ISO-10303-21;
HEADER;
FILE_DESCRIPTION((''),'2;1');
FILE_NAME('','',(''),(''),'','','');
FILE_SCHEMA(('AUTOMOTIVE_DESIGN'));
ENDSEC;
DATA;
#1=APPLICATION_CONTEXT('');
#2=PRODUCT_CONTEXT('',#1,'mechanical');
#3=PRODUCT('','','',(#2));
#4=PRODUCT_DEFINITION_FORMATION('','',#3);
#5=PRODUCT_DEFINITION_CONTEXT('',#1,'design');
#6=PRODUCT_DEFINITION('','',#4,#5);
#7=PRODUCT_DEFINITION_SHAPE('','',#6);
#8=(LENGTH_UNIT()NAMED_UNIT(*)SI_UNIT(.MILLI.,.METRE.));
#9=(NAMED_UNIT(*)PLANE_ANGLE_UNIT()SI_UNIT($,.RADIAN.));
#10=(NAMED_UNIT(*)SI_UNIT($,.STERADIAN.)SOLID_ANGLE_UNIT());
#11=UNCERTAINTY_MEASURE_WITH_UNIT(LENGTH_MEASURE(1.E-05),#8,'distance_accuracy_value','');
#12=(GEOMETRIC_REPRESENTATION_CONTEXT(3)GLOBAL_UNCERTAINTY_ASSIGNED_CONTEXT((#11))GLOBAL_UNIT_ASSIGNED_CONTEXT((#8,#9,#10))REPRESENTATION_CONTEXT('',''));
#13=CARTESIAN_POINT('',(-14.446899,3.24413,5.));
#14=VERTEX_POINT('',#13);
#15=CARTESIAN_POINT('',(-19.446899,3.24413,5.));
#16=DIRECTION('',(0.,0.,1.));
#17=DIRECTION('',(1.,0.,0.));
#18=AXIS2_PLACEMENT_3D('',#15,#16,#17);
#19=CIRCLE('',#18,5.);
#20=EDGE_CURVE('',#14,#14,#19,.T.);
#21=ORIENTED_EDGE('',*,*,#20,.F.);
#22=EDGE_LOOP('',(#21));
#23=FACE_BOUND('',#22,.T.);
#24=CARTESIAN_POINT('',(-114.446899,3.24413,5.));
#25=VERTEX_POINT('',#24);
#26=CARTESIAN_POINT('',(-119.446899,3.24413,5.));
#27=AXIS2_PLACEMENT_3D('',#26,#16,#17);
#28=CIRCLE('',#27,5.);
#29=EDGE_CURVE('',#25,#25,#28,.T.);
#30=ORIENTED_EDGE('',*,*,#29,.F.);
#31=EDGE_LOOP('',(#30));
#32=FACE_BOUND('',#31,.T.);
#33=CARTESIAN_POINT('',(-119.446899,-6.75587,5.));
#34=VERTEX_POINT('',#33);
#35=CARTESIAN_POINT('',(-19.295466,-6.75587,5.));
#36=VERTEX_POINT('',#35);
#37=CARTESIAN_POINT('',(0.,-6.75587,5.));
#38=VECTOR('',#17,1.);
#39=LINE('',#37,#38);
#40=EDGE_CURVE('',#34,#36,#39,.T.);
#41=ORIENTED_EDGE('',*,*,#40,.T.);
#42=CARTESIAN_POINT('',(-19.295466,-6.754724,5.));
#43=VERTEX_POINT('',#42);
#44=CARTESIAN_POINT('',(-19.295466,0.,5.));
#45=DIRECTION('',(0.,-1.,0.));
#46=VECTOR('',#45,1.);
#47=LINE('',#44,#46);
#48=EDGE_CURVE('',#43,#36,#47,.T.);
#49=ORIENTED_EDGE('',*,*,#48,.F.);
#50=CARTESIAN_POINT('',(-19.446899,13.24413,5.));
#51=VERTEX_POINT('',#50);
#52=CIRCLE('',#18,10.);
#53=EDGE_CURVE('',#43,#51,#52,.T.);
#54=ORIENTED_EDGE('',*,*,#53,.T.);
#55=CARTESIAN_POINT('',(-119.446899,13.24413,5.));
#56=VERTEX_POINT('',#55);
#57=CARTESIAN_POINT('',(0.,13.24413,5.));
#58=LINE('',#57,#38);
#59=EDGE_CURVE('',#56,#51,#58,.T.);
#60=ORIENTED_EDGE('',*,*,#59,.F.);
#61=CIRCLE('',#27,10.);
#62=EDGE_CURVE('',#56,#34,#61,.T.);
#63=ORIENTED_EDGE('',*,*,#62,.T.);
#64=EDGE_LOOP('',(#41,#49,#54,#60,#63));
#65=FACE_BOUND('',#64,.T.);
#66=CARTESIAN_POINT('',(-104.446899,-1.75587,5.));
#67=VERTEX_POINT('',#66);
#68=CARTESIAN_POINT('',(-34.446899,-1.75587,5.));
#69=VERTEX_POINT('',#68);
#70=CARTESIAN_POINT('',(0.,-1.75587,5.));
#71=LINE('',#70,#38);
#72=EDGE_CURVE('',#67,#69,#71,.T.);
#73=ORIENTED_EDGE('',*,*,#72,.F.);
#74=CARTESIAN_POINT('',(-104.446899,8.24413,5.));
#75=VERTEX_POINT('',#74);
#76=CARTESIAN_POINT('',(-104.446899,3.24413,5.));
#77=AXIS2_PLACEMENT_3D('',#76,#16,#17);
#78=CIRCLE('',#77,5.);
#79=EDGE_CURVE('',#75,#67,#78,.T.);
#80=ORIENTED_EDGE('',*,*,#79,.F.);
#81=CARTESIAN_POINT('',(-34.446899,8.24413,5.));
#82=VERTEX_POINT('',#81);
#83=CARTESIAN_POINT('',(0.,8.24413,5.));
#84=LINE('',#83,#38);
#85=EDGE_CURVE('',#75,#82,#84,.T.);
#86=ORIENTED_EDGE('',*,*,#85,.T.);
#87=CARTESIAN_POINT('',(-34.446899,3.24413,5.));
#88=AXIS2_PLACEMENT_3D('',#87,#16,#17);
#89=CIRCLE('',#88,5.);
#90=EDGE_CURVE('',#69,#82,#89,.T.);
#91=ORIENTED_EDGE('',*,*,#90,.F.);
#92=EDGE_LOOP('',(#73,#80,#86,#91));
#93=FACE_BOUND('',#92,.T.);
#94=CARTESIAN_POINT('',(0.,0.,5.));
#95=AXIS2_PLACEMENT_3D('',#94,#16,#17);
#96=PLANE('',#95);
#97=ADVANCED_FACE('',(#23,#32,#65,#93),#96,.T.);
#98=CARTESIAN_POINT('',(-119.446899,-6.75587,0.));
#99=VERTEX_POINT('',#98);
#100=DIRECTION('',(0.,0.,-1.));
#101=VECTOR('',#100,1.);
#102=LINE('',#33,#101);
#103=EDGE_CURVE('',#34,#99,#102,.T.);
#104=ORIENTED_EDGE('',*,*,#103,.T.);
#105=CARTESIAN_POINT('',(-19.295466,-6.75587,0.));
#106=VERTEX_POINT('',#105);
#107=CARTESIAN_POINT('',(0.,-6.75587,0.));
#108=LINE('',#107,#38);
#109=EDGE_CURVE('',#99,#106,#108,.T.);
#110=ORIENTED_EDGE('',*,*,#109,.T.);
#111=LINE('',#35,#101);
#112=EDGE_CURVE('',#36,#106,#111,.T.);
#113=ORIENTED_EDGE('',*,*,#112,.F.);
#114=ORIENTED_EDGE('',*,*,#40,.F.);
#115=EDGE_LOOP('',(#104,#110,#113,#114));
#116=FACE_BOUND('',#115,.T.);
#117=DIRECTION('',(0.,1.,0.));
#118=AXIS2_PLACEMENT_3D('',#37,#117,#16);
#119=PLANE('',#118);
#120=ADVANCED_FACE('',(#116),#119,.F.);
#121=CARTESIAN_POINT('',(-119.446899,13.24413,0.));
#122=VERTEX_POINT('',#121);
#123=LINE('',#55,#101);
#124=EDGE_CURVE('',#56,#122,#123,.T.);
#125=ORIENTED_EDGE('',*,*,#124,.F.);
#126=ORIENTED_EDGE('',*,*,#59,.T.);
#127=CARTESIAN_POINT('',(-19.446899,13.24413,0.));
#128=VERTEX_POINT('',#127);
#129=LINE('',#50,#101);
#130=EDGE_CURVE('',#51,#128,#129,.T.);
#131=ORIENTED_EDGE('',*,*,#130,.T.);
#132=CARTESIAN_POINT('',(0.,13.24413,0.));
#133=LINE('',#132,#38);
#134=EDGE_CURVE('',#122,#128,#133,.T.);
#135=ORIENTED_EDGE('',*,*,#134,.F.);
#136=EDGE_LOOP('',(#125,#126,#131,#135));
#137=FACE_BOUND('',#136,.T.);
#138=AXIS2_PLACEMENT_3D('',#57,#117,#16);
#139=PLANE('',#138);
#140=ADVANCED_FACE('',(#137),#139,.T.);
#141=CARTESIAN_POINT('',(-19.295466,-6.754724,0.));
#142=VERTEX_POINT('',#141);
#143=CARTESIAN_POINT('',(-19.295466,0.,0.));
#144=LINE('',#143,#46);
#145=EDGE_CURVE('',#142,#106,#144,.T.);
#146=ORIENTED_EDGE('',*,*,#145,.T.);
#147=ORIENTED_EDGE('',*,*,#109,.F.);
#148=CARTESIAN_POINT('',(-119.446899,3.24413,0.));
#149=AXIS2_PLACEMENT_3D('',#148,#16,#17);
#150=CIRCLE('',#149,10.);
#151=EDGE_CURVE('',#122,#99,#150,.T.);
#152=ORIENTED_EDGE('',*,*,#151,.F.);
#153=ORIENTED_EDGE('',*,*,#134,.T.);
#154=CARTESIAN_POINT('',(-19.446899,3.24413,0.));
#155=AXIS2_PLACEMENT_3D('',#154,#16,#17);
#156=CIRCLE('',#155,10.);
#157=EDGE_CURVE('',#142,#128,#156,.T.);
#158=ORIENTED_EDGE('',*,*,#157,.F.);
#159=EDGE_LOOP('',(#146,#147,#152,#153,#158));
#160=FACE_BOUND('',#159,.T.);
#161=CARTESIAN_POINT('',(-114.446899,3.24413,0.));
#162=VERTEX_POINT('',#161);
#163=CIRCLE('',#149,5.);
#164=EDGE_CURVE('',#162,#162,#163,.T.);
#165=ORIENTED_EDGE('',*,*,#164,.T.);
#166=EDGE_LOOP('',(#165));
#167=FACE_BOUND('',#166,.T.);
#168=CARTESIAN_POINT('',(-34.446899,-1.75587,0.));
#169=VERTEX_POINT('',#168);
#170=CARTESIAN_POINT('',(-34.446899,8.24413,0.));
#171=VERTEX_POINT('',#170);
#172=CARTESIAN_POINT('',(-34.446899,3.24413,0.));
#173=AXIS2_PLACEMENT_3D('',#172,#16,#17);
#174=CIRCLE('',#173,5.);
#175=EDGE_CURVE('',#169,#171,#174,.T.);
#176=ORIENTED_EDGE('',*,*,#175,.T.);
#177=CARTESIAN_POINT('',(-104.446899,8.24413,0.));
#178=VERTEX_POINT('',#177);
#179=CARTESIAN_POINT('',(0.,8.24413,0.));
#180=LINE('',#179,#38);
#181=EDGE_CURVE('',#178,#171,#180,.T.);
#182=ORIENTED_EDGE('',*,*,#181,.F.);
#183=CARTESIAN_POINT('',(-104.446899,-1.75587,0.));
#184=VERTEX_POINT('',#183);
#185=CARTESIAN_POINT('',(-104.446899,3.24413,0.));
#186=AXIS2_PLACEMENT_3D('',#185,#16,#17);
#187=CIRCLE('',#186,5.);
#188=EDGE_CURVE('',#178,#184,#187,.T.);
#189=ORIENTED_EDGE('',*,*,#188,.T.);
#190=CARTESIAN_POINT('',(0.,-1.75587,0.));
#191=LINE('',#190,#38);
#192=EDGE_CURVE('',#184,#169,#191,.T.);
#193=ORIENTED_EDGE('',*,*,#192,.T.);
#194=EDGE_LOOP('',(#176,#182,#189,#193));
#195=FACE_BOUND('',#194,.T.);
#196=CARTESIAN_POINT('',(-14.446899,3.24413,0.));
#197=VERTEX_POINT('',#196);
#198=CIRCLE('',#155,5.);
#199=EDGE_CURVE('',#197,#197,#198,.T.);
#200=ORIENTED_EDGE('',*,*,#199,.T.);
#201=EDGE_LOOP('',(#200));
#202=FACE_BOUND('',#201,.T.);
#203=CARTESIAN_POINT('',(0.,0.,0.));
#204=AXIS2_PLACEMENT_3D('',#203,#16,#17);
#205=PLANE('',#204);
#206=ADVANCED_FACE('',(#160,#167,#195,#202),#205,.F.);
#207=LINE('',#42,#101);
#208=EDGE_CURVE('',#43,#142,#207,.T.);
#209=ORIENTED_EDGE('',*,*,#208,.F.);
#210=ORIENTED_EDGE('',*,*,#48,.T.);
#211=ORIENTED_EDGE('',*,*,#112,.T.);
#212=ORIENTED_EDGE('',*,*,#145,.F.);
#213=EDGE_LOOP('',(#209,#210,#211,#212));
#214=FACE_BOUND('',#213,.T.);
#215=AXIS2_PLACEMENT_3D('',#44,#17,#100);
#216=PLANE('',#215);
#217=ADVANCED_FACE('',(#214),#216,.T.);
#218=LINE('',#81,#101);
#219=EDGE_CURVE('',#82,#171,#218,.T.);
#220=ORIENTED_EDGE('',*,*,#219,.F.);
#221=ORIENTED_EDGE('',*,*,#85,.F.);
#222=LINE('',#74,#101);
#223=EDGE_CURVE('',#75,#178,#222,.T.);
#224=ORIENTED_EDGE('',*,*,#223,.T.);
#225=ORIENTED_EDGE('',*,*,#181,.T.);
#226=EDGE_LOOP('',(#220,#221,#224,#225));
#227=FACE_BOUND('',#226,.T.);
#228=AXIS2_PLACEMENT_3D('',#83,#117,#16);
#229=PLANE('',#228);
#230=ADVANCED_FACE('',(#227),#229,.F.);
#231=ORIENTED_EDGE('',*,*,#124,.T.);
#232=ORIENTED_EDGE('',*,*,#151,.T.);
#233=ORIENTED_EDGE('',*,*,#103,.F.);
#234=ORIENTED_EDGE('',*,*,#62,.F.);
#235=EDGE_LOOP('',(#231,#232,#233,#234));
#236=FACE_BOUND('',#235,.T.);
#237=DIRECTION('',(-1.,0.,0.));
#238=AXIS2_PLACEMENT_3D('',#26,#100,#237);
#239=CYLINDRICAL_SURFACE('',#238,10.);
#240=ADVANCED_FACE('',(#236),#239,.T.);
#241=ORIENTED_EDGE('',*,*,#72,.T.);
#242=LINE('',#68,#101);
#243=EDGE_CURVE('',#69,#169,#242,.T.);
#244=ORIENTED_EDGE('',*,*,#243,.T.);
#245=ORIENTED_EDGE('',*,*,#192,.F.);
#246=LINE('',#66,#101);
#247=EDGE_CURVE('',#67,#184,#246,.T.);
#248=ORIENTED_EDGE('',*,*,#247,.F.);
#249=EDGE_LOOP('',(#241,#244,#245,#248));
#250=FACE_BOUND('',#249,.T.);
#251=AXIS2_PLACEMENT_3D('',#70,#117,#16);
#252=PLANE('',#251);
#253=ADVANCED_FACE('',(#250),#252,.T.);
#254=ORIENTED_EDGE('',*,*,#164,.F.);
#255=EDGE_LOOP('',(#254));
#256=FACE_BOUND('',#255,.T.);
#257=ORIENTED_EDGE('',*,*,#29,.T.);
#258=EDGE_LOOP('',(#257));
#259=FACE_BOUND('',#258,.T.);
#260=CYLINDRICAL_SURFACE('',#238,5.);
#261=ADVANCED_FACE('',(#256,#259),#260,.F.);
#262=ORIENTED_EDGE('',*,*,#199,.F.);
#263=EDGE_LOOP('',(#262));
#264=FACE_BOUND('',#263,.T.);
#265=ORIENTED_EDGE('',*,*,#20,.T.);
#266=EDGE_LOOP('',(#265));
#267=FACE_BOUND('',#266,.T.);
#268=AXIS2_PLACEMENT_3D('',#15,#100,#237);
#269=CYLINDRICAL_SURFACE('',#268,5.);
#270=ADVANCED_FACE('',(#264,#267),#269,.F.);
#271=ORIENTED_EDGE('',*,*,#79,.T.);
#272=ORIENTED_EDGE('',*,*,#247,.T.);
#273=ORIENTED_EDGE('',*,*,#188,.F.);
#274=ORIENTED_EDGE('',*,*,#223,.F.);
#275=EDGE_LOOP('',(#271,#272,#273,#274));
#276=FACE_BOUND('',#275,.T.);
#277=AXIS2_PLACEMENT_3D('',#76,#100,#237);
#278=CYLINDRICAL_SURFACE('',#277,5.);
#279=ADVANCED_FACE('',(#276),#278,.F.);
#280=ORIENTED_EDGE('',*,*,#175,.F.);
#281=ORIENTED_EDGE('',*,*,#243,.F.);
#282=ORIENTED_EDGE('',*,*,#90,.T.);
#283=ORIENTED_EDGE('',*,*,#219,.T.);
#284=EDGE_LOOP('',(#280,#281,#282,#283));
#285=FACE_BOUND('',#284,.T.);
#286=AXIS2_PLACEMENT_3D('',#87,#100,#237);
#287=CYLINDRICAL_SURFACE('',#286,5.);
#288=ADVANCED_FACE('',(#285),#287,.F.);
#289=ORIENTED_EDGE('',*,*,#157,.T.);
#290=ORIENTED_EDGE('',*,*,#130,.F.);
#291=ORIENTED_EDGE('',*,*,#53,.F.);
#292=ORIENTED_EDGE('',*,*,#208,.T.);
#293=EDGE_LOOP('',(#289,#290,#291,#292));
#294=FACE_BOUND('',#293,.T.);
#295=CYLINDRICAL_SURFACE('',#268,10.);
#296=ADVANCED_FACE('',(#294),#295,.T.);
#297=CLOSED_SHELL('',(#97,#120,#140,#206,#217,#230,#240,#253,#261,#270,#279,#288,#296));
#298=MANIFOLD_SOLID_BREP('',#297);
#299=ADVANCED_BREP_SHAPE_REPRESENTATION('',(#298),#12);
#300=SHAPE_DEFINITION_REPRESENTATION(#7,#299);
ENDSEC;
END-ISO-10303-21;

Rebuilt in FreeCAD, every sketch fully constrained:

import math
import FreeCAD as App
import Part
import Sketcher
from FreeCAD import Vector
Q = App.Units.Quantity

doc = App.newDocument("Part")
body = doc.addObject("PartDesign::Body", "Body")

sketch1 = body.newObject("Sketcher::SketchObject", "Sketch")
sketch1.AttachmentSupport = (doc.getObject("XY_Plane"), [""])
sketch1.MapMode = "FlatFace"
sketch1.addGeometry(Part.LineSegment(Vector(-19.4469, 13.2441, 0), Vector(-119.4469, 13.2441, 0)), False)
sketch1.addGeometry(Part.ArcOfCircle(Part.Circle(Vector(-119.4469, 3.2441, 0), Vector(0, 0, 1), 10), math.radians(90), math.radians(270)), False)
sketch1.addGeometry(Part.LineSegment(Vector(-119.4469, -6.7559, 0), Vector(-19.2955, -6.7559, 0)), False)
sketch1.addGeometry(Part.LineSegment(Vector(-19.2955, -6.7559, 0), Vector(-19.2955, -6.7547, 0)), False)
sketch1.addGeometry(Part.ArcOfCircle(Part.Circle(Vector(-19.4469, 3.2441, 0), Vector(0, 0, 1), 10), math.radians(-89), math.radians(89)), False)
sketch1.addGeometry(Part.ArcOfCircle(Part.Circle(Vector(-19.4469, 3.2441, 0), Vector(0, 0, 1), 10), math.radians(89.13), math.radians(90)), False)
sketch1.addGeometry(Part.Circle(Vector(-119.4469, 3.2441, 0), Vector(0, 0, 1), 5), False)
sketch1.addGeometry(Part.LineSegment(Vector(-34.4469, -1.7559, 0), Vector(-104.4469, -1.7559, 0)), False)
sketch1.addGeometry(Part.ArcOfCircle(Part.Circle(Vector(-104.4469, 3.2441, 0), Vector(0, 0, 1), 5), math.radians(90), math.radians(270)), False)
sketch1.addGeometry(Part.LineSegment(Vector(-104.4469, 8.2441, 0), Vector(-34.4469, 8.2441, 0)), False)
sketch1.addGeometry(Part.ArcOfCircle(Part.Circle(Vector(-34.4469, 3.2441, 0), Vector(0, 0, 1), 5), math.radians(-90), math.radians(90)), False)
sketch1.addGeometry(Part.Circle(Vector(-19.4469, 3.2441, 0), Vector(0, 0, 1), 5), False)
sketch1.addConstraint(Sketcher.Constraint("Tangent", 0, 2, 1, 1))
sketch1.addConstraint(Sketcher.Constraint("Tangent", 1, 2, 2, 1))
sketch1.addConstraint(Sketcher.Constraint("Coincident", 2, 2, 3, 1))
sketch1.addConstraint(Sketcher.Constraint("Coincident", 3, 2, 4, 1))
sketch1.addConstraint(Sketcher.Constraint("Tangent", 4, 2, 5, 1))
sketch1.addConstraint(Sketcher.Constraint("Tangent", 5, 2, 0, 1))
sketch1.addConstraint(Sketcher.Constraint("Tangent", 7, 2, 8, 2))
sketch1.addConstraint(Sketcher.Constraint("Tangent", 8, 1, 9, 1))
sketch1.addConstraint(Sketcher.Constraint("Tangent", 9, 2, 10, 2))
sketch1.addConstraint(Sketcher.Constraint("Tangent", 10, 1, 7, 1))
sketch1.addConstraint(Sketcher.Constraint("Horizontal", 0))
sketch1.addConstraint(Sketcher.Constraint("Horizontal", 2))
sketch1.addConstraint(Sketcher.Constraint("Vertical", 3))
sketch1.addConstraint(Sketcher.Constraint("Horizontal", 7))
sketch1.addConstraint(Sketcher.Constraint("Horizontal", 9))
sketch1.addConstraint(Sketcher.Constraint("Coincident", 6, 3, 1, 3))
sketch1.addConstraint(Sketcher.Constraint("Coincident", 11, 3, 4, 3))
sketch1.addConstraint(Sketcher.Constraint("Equal", 1, 4))
sketch1.addConstraint(Sketcher.Constraint("Equal", 4, 5))
sketch1.addConstraint(Sketcher.Constraint("Equal", 6, 8))
sketch1.addConstraint(Sketcher.Constraint("Equal", 10, 11))
sketch1.addConstraint(Sketcher.Constraint("Horizontal", 6, 3, 8, 3))
sketch1.addConstraint(Sketcher.Constraint("Vertical", 3, 2, 4, 2))
sketch1.addConstraint(Sketcher.Constraint("Diameter", 6, Q("10 mm")))
sketch1.addConstraint(Sketcher.Constraint("Radius", 1, Q("10 mm")))
sketch1.addConstraint(Sketcher.Constraint("DistanceX", 0, 2, 0, 1, Q("100 mm")))
sketch1.addConstraint(Sketcher.Constraint("DistanceX", 7, 2, 7, 1, Q("70 mm")))
sketch1.addConstraint(Sketcher.Constraint("DistanceX", 1, 3, 8, 3, Q("15 mm")))
sketch1.addConstraint(Sketcher.Constraint("DistanceX", 1, 3, -1, 1, Q("119.446899 mm")))
sketch1.addConstraint(Sketcher.Constraint("DistanceX", 2, 1, 2, 2, Q("100.151432 mm")))
sketch1.addConstraint(Sketcher.Constraint("DistanceY", -1, 1, 1, 3, Q("3.24413 mm")))
pad1 = body.newObject("PartDesign::Pad", "Pad")
pad1.Profile = sketch1
pad1.Length = 5

doc.recompute()
